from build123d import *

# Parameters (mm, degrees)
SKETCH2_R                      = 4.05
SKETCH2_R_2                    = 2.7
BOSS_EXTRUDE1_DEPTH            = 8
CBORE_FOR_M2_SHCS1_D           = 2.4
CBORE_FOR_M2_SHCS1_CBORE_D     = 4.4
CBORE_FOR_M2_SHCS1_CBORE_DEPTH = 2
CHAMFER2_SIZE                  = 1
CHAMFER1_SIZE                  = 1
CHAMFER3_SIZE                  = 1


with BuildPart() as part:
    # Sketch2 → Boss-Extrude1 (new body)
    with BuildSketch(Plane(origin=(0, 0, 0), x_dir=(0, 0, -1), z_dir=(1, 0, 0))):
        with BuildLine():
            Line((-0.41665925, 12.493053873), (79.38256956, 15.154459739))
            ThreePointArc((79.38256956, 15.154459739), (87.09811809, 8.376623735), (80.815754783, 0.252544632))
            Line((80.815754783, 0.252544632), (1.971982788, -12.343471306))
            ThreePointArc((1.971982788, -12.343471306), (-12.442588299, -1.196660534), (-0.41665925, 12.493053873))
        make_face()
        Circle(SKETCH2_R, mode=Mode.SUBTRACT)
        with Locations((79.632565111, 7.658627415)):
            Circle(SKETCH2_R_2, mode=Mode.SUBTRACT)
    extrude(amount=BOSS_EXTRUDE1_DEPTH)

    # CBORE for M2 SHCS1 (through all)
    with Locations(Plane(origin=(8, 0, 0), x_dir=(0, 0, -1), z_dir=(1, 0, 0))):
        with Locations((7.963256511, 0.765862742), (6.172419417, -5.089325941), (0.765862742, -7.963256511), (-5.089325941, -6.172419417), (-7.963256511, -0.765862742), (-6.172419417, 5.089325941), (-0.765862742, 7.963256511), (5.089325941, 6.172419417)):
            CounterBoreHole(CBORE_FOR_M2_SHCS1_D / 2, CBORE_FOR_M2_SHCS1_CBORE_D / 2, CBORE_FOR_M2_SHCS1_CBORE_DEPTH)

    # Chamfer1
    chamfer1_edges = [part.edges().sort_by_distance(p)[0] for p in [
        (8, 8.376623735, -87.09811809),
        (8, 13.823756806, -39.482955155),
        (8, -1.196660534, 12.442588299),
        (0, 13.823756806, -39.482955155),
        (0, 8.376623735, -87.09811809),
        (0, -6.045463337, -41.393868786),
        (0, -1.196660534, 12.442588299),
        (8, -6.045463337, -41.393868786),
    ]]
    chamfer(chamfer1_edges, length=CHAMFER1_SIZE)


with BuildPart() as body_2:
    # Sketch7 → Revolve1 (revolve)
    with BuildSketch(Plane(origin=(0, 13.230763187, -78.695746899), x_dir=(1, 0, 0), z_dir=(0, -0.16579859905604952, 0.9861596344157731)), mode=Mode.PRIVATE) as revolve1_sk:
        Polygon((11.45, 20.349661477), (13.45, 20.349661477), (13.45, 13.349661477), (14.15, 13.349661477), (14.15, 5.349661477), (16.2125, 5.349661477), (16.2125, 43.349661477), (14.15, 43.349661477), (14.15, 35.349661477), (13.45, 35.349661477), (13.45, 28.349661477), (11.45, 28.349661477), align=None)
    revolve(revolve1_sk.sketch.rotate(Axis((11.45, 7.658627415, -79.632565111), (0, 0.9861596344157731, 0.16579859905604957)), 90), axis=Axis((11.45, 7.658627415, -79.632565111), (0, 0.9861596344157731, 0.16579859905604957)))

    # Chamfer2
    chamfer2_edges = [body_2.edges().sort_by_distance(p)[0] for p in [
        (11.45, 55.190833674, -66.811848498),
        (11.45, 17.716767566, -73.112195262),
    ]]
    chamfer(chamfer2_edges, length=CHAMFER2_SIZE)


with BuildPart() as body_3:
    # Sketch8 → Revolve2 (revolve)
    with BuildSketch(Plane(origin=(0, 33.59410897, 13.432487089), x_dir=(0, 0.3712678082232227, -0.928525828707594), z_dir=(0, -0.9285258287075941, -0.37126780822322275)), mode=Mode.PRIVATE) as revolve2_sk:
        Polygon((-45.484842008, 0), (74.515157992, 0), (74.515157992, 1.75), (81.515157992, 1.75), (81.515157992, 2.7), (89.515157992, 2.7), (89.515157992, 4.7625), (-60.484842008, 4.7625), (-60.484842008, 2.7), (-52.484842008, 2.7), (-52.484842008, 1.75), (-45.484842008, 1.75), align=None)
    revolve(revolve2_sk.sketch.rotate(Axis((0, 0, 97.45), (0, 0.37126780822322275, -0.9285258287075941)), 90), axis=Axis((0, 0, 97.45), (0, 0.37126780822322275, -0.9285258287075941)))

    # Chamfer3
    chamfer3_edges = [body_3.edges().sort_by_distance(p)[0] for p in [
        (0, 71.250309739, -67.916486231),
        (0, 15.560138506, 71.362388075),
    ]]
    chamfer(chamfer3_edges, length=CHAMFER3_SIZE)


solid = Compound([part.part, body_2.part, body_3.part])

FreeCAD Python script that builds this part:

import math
import FreeCAD as App
import Part
import Sketcher

V = App.Vector
Q = App.Units.Quantity


def edges_at(feature, points):
    """Names of the edges that pass closest to the given points."""
    edges = feature.Shape.Edges
    near = lambda p: min(range(len(edges)), key=lambda i: edges[i].distToShape(Part.Vertex(*p))[0])
    return sorted({f"Edge{near(p) + 1}" for p in points})


def add_polygon(sketch, points):
    """Adds a closed chain of lines whose ends are joined by coincident constraints."""
    first, n = sketch.GeometryCount, len(points)
    for a, b in zip(points, points[1:] + points[:1]):
        sketch.addGeometry(Part.LineSegment(App.Vector(*a, 0), App.Vector(*b, 0)), False)
    for i in range(n):
        sketch.addConstraint(Sketcher.Constraint("Coincident", first + i, 2, first + (i + 1) % n, 1))

doc = App.newDocument("Part")
body = doc.addObject("PartDesign::Body", "Body")

# Sketch on YZ plane
sketch1 = body.newObject("Sketcher::SketchObject", "Sketch")
sketch1.AttachmentSupport = (doc.getObject("YZ_Plane"), [""])
sketch1.MapMode = "FlatFace"
sketch1.addGeometry(Part.LineSegment(V(15.15446, -79.38257, 0), V(12.493054, 0.416659, 0)), False)
sketch1.addGeometry(Part.ArcOfCircle(Part.Circle(V(0, 0, 0), V(0, 0, 1), 12.5), math.radians(1.910179), math.radians(189.076823)), False)
sketch1.addGeometry(Part.LineSegment(V(-12.343471, -1.971983, 0), V(0.252545, -80.815755, 0)), False)
sketch1.addGeometry(Part.ArcOfCircle(Part.Circle(V(7.658627, -79.632565, 0), V(0, 0, 1), 7.5), math.radians(-170.923177), math.radians(1.910179)), False)
sketch1.addGeometry(Part.Circle(V(0, 0, 0), V(0, 0, 1), 4.05), False)
sketch1.addGeometry(Part.Circle(V(7.658627, -79.632565, 0), V(0, 0, 1), 2.7), False)
sketch1.addConstraint(Sketcher.Constraint("Coincident", 0, 2, 1, 1))
sketch1.addConstraint(Sketcher.Constraint("Coincident", 1, 2, 2, 1))
sketch1.addConstraint(Sketcher.Constraint("Coincident", 2, 2, 3, 1))
sketch1.addConstraint(Sketcher.Constraint("Coincident", 3, 2, 0, 1))
sketch1.addConstraint(Sketcher.Constraint("Coincident", 1, 3, -1, 1))
sketch1.addConstraint(Sketcher.Constraint("Coincident", 4, 3, -1, 1))
sketch1.addConstraint(Sketcher.Constraint("Coincident", 5, 3, 3, 3))
sketch1.addConstraint(Sketcher.Constraint("Diameter", 4, Q("8.1 mm")))
sketch1.addConstraint(Sketcher.Constraint("Diameter", 5, Q("5.4 mm")))
sketch1.addConstraint(Sketcher.Constraint("Radius", 1, Q("12.5 mm")))
sketch1.addConstraint(Sketcher.Constraint("Radius", 3, Q("7.5 mm")))
sketch1.addConstraint(Sketcher.Constraint("DistanceX", 1, 2, 5, 3, Q("20.002099 mm")))
sketch1.addConstraint(Sketcher.Constraint("DistanceY", -1, 1, 0, 2, Q("0.416659 mm")))
sketch1.addConstraint(Sketcher.Constraint("DistanceX", 1, 2, -1, 1, Q("12.343471 mm")))
sketch1.addConstraint(Sketcher.Constraint("DistanceX", -1, 1, 3, 2, Q("15.15446 mm")))
sketch1.addConstraint(Sketcher.Constraint("DistanceY", 3, 2, -1, 1, Q("79.38257 mm")))
sketch1.addConstraint(Sketcher.Constraint("DistanceY", 2, 2, 5, 3, Q("1.18319 mm")))
pad1 = body.newObject("PartDesign::Pad", "Pad")
pad1.Profile = sketch1
pad1.Length = 8

# Sketch on YZ plane
sketch2 = body.newObject("Sketcher::SketchObject", "Sketch001")
sketch2.AttachmentSupport = (doc.getObject("YZ_Plane"), [""])
sketch2.MapMode = "FlatFace"
sketch2.AttachmentOffset = App.Placement(V(0, 0, 8), App.Rotation())
sketch2.addGeometry(Part.Circle(V(0.8, -8, 0), V(0, 0, 1), 1.2), False)
sketch2.addGeometry(Part.Circle(V(-5.1, -6.2, 0), V(0, 0, 1), 1.2), False)
sketch2.addGeometry(Part.Circle(V(-8, -0.8, 0), V(0, 0, 1), 1.2), False)
sketch2.addGeometry(Part.Circle(V(-6.2, 5.1, 0), V(0, 0, 1), 1.2), False)
sketch2.addGeometry(Part.Circle(V(-0.8, 8, 0), V(0, 0, 1), 1.2), False)
sketch2.addGeometry(Part.Circle(V(5.1, 6.2, 0), V(0, 0, 1), 1.2), False)
sketch2.addGeometry(Part.Circle(V(8, 0.8, 0), V(0, 0, 1), 1.2), False)
sketch2.addGeometry(Part.Circle(V(6.2, -5.1, 0), V(0, 0, 1), 1.2), False)
sketch2.addConstraint(Sketcher.Constraint("Equal", 0, 1))
sketch2.addConstraint(Sketcher.Constraint("Equal", 1, 2))
sketch2.addConstraint(Sketcher.Constraint("Equal", 2, 3))
sketch2.addConstraint(Sketcher.Constraint("Equal", 3, 4))
sketch2.addConstraint(Sketcher.Constraint("Equal", 4, 5))
sketch2.addConstraint(Sketcher.Constraint("Equal", 5, 6))
sketch2.addConstraint(Sketcher.Constraint("Equal", 6, 7))
sketch2.addConstraint(Sketcher.Constraint("Symmetric", 0, 3, 4, 3, -1, 1))
sketch2.addConstraint(Sketcher.Constraint("Symmetric", 1, 3, 5, 3, -1, 1))
sketch2.addConstraint(Sketcher.Constraint("Symmetric", 2, 3, 6, 3, -1, 1))
sketch2.addConstraint(Sketcher.Constraint("Symmetric", 3, 3, 7, 3, -1, 1))
sketch2.addConstraint(Sketcher.Constraint("Diameter", 0, Q("2.4 mm")))
sketch2.addConstraint(Sketcher.Constraint("DistanceY", 1, 3, -1, 1, Q("6.172419 mm")))
sketch2.addConstraint(Sketcher.Constraint("DistanceX", 3, 3, -1, 1, Q("6.172419 mm")))
sketch2.addConstraint(Sketcher.Constraint("DistanceX", 1, 3, 0, 3, Q("5.855189 mm")))
sketch2.addConstraint(Sketcher.Constraint("DistanceX", 2, 3, 1, 3, Q("2.873931 mm")))
sketch2.addConstraint(Sketcher.Constraint("DistanceY", 2, 3, 3, 3, Q("5.855189 mm")))
sketch2.addConstraint(Sketcher.Constraint("DistanceY", 3, 3, 4, 3, Q("2.873931 mm")))
sketch2.addConstraint(Sketcher.Constraint("DistanceX", 1, 3, 5, 3, Q("10.178652 mm")))
sketch2.addConstraint(Sketcher.Constraint("DistanceY", 0, 3, -1, 1, Q("7.963257 mm")))
doc.recompute()
hole = body.newObject("PartDesign::Hole", "Hole")
hole.Profile = sketch2
hole.ThreadType = "None"
hole.Diameter = 2.4
hole.DepthType = "ThroughAll"
hole.HoleCutType = "Counterbore"
hole.HoleCutDiameter = 4.4
hole.HoleCutDepth = 2
doc.recompute()

chamfer = body.newObject("PartDesign::Chamfer", "Chamfer")
chamfer.Base = (hole, edges_at(hole, [
    (8, 8.377, -87.098),
    (8, 13.824, -39.483),
    (8, -1.197, 12.443),
    (0, 13.824, -39.483),
    (0, 8.377, -87.098),
    (0, -6.045, -41.394),
    (0, -1.197, 12.443),
    (8, -6.045, -41.394),
]))
chamfer.Size = 1
body2 = doc.addObject("PartDesign::Body", "Body001")

# Sketch on an angled plane
sketch3 = body2.newObject("Sketcher::SketchObject", "Sketch002")
sketch3.Placement = App.Placement(V(0, 13.230763, -78.695747), App.Rotation(V(1, 0, 0), V(0, 0.986159634, 0.165798599), V(0, -0.165798599, 0.986159634), "ZXY"))
add_polygon(sketch3, [(11.4, 20.3), (13.4, 20.3), (13.4, 13.3), (14.2, 13.3), (14.2, 5.3), (16.2, 5.3), (16.2, 43.3), (14.2, 43.3), (14.2, 35.3), (13.4, 35.3), (13.4, 28.3), (11.4, 28.3)])  # lines 0-11
sketch3.addGeometry(Part.LineSegment(V(11.4, 5.3, 0), V(11.4, 43.3, 0)), True)  # axis
sketch3.addConstraint(Sketcher.Constraint("Horizontal", 0))
sketch3.addConstraint(Sketcher.Constraint("Vertical", 1))
sketch3.addConstraint(Sketcher.Constraint("Horizontal", 2))
sketch3.addConstraint(Sketcher.Constraint("Vertical", 3))
sketch3.addConstraint(Sketcher.Constraint("Horizontal", 4))
sketch3.addConstraint(Sketcher.Constraint("Vertical", 5))
sketch3.addConstraint(Sketcher.Constraint("Horizontal", 6))
sketch3.addConstraint(Sketcher.Constraint("Vertical", 7))
sketch3.addConstraint(Sketcher.Constraint("Horizontal", 8))
sketch3.addConstraint(Sketcher.Constraint("Vertical", 9))
sketch3.addConstraint(Sketcher.Constraint("Horizontal", 10))
sketch3.addConstraint(Sketcher.Constraint("Vertical", 11))
sketch3.addConstraint(Sketcher.Constraint("Vertical", 12))
sketch3.addConstraint(Sketcher.Constraint("Horizontal", 4, 2, 12, 1))
sketch3.addConstraint(Sketcher.Constraint("Horizontal", 6, 2, 12, 2))
sketch3.addConstraint(Sketcher.Constraint("Vertical", 3, 2, 6, 2))
sketch3.addConstraint(Sketcher.Constraint("Vertical", 1, 2, 8, 2))
sketch3.addConstraint(Sketcher.Constraint("Vertical", 11, 2, 12, 1))
sketch3.addConstraint(Sketcher.Constraint("Equal", 3, 7))
sketch3.addConstraint(Sketcher.Constraint("Equal", 1, 9))
sketch3.addConstraint(Sketcher.Constraint("Equal", 7, 11))
sketch3.addConstraint(Sketcher.Constraint("DistanceX", 0, 1, 0, 2, Q("2 mm")))
sketch3.addConstraint(Sketcher.Constraint("DistanceY", 1, 2, 1, 1, Q("7 mm")))
sketch3.addConstraint(Sketcher.Constraint("DistanceY", 3, 2, 3, 1, Q("8 mm")))
sketch3.addConstraint(Sketcher.Constraint("DistanceX", 2, 1, 2, 2, Q("0.7 mm")))
sketch3.addConstraint(Sketcher.Constraint("DistanceX", -1, 1, 0, 2, Q("13.45 mm")))
sketch3.addConstraint(Sketcher.Constraint("DistanceX", 4, 1, 4, 2, Q("2.0625 mm")))
sketch3.addConstraint(Sketcher.Constraint("DistanceY", -1, 1, 0, 2, Q("20.349661 mm")))
revolution = body2.newObject("PartDesign::Revolution", "Revolution")
revolution.Profile = sketch3
revolution.ReferenceAxis = (sketch3, ["Axis0"])
revolution.Angle = 360
doc.recompute()

chamfer2 = body2.newObject("PartDesign::Chamfer", "Chamfer001")
chamfer2.Base = (revolution, edges_at(revolution, [(11.45, 55.191, -66.812), (11.45, 17.717, -73.112)]))
chamfer2.Size = 1
body3 = doc.addObject("PartDesign::Body", "Body002")

# Sketch on an angled plane
sketch4 = body3.newObject("Sketcher::SketchObject", "Sketch003")
sketch4.Placement = App.Placement(V(0, 33.594109, 13.432487), App.Rotation(V(0, 0.371267808, -0.928525829), V(1, 0, 0), V(0, -0.928525829, -0.371267808), "ZXY"))
add_polygon(sketch4, [(-45.5, 0), (74.5, 0), (74.5, 1.8), (81.5, 1.8), (81.5, 2.7), (89.5, 2.7), (89.5, 4.8), (-60.5, 4.8), (-60.5, 2.7), (-52.5, 2.7), (-52.5, 1.8), (-45.5, 1.8)])  # lines 0-11
sketch4.addConstraint(Sketcher.Constraint("Horizontal", 0))
sketch4.addConstraint(Sketcher.Constraint("Vertical", 1))
sketch4.addConstraint(Sketcher.Constraint("Horizontal", 2))
sketch4.addConstraint(Sketcher.Constraint("Vertical", 3))
sketch4.addConstraint(Sketcher.Constraint("Horizontal", 4))
sketch4.addConstraint(Sketcher.Constraint("Vertical", 5))
sketch4.addConstraint(Sketcher.Constraint("Horizontal", 6))
sketch4.addConstraint(Sketcher.Constraint("Vertical", 7))
sketch4.addConstraint(Sketcher.Constraint("Horizontal", 8))
sketch4.addConstraint(Sketcher.Constraint("Vertical", 9))
sketch4.addConstraint(Sketcher.Constraint("Horizontal", 10))
sketch4.addConstraint(Sketcher.Constraint("Vertical", 11))
sketch4.addConstraint(Sketcher.Constraint("PointOnObject", 0, 2, -1))
sketch4.addConstraint(Sketcher.Constraint("Horizontal", 4, 2, 7, 2))
sketch4.addConstraint(Sketcher.Constraint("Horizontal", 2, 2, 9, 2))
sketch4.addConstraint(Sketcher.Constraint("Equal", 4, 8))
sketch4.addConstraint(Sketcher.Constraint("Equal", 2, 10))
sketch4.addConstraint(Sketcher.Constraint("DistanceX", 0, 1, 0, 2, Q("120 mm")))
sketch4.addConstraint(Sketcher.Constraint("DistanceX", 2, 1, 2, 2, Q("7 mm")))
sketch4.addConstraint(Sketcher.Constraint("DistanceX", 4, 1, 4, 2, Q("8 mm")))
sketch4.addConstraint(Sketcher.Constraint("DistanceY", 1, 1, 1, 2, Q("1.75 mm")))
sketch4.addConstraint(Sketcher.Constraint("DistanceY", 3, 1, 3, 2, Q("0.95 mm")))
sketch4.addConstraint(Sketcher.Constraint("DistanceY", 5, 1, 5, 2, Q("2.0625 mm")))
sketch4.addConstraint(Sketcher.Constraint("DistanceX", -1, 1, 0, 2, Q("74.515158 mm")))
revolution2 = body3.newObject("PartDesign::Revolution", "Revolution001")
revolution2.Profile = sketch4
revolution2.ReferenceAxis = (sketch4, ["H_Axis"])
revolution2.Angle = 360
doc.recompute()

chamfer3 = body3.newObject("PartDesign::Chamfer", "Chamfer002")
chamfer3.Base = (revolution2, edges_at(revolution2, [(0, 71.25, -67.916), (0, 15.56, 71.362)]))
chamfer3.Size = 1

doc.recompute()
